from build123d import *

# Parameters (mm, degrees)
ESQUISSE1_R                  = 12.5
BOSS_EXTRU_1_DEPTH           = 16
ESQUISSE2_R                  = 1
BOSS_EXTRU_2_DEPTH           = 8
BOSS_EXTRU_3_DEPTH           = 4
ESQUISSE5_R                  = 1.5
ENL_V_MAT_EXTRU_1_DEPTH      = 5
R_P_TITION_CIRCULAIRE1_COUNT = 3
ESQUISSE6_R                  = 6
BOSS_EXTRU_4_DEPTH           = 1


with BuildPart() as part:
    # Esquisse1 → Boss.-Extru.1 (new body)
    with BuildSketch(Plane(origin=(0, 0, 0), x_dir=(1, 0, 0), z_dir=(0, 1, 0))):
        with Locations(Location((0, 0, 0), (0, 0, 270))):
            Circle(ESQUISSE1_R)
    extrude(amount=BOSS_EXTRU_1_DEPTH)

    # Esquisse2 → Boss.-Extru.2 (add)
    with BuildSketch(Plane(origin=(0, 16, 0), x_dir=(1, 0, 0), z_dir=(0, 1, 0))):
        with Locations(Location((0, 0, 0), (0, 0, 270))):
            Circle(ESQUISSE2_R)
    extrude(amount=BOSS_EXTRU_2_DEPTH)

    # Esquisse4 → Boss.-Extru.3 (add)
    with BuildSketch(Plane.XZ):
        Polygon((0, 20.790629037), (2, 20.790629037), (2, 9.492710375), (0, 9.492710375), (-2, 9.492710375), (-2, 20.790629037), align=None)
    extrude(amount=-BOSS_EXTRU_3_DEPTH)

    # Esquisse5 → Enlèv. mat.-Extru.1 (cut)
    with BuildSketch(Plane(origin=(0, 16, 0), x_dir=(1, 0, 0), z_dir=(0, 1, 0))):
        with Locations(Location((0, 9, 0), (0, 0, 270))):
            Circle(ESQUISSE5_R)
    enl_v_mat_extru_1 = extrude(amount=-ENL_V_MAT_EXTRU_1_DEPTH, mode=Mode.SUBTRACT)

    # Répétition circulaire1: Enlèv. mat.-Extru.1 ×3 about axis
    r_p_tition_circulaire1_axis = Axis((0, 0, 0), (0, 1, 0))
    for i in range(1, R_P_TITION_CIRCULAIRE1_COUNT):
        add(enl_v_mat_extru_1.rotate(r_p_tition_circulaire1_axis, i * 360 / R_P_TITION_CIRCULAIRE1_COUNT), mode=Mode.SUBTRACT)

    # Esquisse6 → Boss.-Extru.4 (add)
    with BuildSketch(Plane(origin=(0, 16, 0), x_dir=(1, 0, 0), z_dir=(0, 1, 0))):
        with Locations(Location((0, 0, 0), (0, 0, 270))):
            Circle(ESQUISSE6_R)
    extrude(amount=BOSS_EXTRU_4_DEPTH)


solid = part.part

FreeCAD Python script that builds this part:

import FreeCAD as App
import Part
import Sketcher

V = App.Vector
Q = App.Units.Quantity

doc = App.newDocument("Part")
body = doc.addObject("PartDesign::Body", "Body")

# Sketch on XZ plane
sketch1 = body.newObject("Sketcher::SketchObject", "Sketch")
sketch1.AttachmentSupport = (doc.getObject("XZ_Plane"), [""])
sketch1.MapMode = "FlatFace"
sketch1.addGeometry(Part.Circle(V(0, 0, 0), V(0, 0, 1), 12), False)
sketch1.addConstraint(Sketcher.Constraint("Coincident", 0, 3, -1, 1))
sketch1.addConstraint(Sketcher.Constraint("Diameter", 0, Q("25 mm")))
pad1 = body.newObject("PartDesign::Pad", "Pad")
pad1.Profile = sketch1
pad1.Length = 16
pad1.Reversed = True

# Sketch on XZ plane
sketch2 = body.newObject("Sketcher::SketchObject", "Sketch001")
sketch2.AttachmentSupport = (doc.getObject("XZ_Plane"), [""])
sketch2.MapMode = "FlatFace"
sketch2.AttachmentOffset = App.Placement(V(0, 0, -16), App.Rotation())
sketch2.addGeometry(Part.Circle(V(0, 0, 0), V(0, 0, 1), 1), False)
sketch2.addConstraint(Sketcher.Constraint("Coincident", 0, 3, -1, 1))
sketch2.addConstraint(Sketcher.Constraint("Diameter", 0, Q("2 mm")))
pad2 = body.newObject("PartDesign::Pad", "Pad001")
pad2.Profile = sketch2
pad2.Length = 8
pad2.Reversed = True

# Sketch on XZ plane
sketch3 = body.newObject("Sketcher::SketchObject", "Sketch002")
sketch3.AttachmentSupport = (doc.getObject("XZ_Plane"), [""])
sketch3.MapMode = "FlatFace"
sketch3.addGeometry(Part.LineSegment(V(2, 20.8, 0), V(-2, 20.8, 0)), False)
sketch3.addGeometry(Part.LineSegment(V(-2, 20.8, 0), V(-2, 9.5, 0)), False)
sketch3.addGeometry(Part.LineSegment(V(-2, 9.5, 0), V(2, 9.5, 0)), False)
sketch3.addGeometry(Part.LineSegment(V(2, 9.5, 0), V(2, 20.8, 0)), False)
sketch3.addConstraint(Sketcher.Constraint("Coincident", 0, 2, 1, 1))
sketch3.addConstraint(Sketcher.Constraint("Coincident", 1, 2, 2, 1))
sketch3.addConstraint(Sketcher.Constraint("Coincident", 2, 2, 3, 1))
sketch3.addConstraint(Sketcher.Constraint("Coincident", 3, 2, 0, 1))
sketch3.addConstraint(Sketcher.Constraint("Horizontal", 0))
sketch3.addConstraint(Sketcher.Constraint("Vertical", 1))
sketch3.addConstraint(Sketcher.Constraint("Horizontal", 2))
sketch3.addConstraint(Sketcher.Constraint("Vertical", 3))
sketch3.addConstraint(Sketcher.Constraint("DistanceX", 0, 2, 0, 1, Q("4 mm")))
sketch3.addConstraint(Sketcher.Constraint("DistanceX", 0, 2, -1, 1, Q("2 mm")))
sketch3.addConstraint(Sketcher.Constraint("DistanceY", 1, 2, 1, 1, Q("11.297919 mm")))
sketch3.addConstraint(Sketcher.Constraint("DistanceY", -1, 1, 0, 2, Q("20.790629 mm")))
pad3 = body.newObject("PartDesign::Pad", "Pad002")
pad3.Profile = sketch3
pad3.Length = 4
pad3.Reversed = True

# Sketch on XZ plane
sketch4 = body.newObject("Sketcher::SketchObject", "Sketch003")
sketch4.AttachmentSupport = (doc.getObject("XZ_Plane"), [""])
sketch4.MapMode = "FlatFace"
sketch4.AttachmentOffset = App.Placement(V(0, 0, -16), App.Rotation())
sketch4.addGeometry(Part.Circle(V(0, -9, 0), V(0, 0, 1), 1.5), False)
sketch4.addConstraint(Sketcher.Constraint("PointOnObject", 0, 3, -2))
sketch4.addConstraint(Sketcher.Constraint("Diameter", 0, Q("3 mm")))
sketch4.addConstraint(Sketcher.Constraint("DistanceY", 0, 3, -1, 1, Q("9 mm")))
pocket1 = body.newObject("PartDesign::Pocket", "Pocket")
pocket1.Profile = sketch4
pocket1.Length = 5
pocket1.Reversed = True
doc.recompute()

polarpattern = body.newObject("PartDesign::PolarPattern", "PolarPattern")
polarpattern.Originals = [pocket1]
polarpattern.Axis = (doc.getObject("Y_Axis"), [""])
polarpattern.Angle = 360
polarpattern.Occurrences = 3
body.Tip = polarpattern

# Sketch on XZ plane
sketch5 = body.newObject("Sketcher::SketchObject", "Sketch004")
sketch5.AttachmentSupport = (doc.getObject("XZ_Plane"), [""])
sketch5.MapMode = "FlatFace"
sketch5.AttachmentOffset = App.Placement(V(0, 0, -16), App.Rotation())
sketch5.addGeometry(Part.Circle(V(0, 0, 0), V(0, 0, 1), 6), False)
sketch5.addConstraint(Sketcher.Constraint("Coincident", 0, 3, -1, 1))
sketch5.addConstraint(Sketcher.Constraint("Diameter", 0, Q("12 mm")))
pad4 = body.newObject("PartDesign::Pad", "Pad003")
pad4.Profile = sketch5
pad4.Length = 1
pad4.Reversed = True

doc.recompute()
